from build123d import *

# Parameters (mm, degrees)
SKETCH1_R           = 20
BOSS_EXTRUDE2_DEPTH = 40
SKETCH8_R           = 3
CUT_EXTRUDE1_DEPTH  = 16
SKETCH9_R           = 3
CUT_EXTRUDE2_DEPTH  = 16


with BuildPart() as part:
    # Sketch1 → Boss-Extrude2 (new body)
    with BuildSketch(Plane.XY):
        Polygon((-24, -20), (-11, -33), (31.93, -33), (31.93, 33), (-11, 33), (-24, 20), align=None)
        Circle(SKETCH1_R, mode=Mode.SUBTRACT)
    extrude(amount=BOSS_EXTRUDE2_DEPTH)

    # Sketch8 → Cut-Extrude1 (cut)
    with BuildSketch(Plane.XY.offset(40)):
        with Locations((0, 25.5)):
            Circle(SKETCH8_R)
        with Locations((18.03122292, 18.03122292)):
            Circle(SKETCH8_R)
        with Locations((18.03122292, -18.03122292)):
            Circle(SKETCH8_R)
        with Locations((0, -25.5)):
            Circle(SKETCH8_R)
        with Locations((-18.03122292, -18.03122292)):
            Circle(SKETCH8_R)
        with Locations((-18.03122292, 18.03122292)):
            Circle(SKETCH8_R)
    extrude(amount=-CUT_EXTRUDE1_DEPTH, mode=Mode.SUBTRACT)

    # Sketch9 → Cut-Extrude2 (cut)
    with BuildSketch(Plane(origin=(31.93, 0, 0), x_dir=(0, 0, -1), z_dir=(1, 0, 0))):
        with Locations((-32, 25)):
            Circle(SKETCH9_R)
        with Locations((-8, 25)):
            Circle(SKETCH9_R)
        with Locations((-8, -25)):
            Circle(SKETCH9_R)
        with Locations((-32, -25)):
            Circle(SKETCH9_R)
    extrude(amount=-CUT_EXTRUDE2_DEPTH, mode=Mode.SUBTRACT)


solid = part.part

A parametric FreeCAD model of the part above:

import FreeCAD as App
import Part
import Sketcher
Q = App.Units.Quantity

doc = App.newDocument("Part")
body = doc.addObject("PartDesign::Body", "Body")

# Sketch on XY plane
sketch1 = doc.addObject("Sketcher::SketchObject", "Sketch")
body.addObject(sketch1)
sketch1.AttachmentSupport = (doc.XY_Plane, [""])
sketch1.MapMode = "FlatFace"
sketch1.addGeometry([
    Part.LineSegment(App.Vector(-24, -20, 0), App.Vector(-11, -33, 0)),  # 0
    Part.LineSegment(App.Vector(-11, -33, 0), App.Vector(31.93, -33, 0)),  # 1
    Part.LineSegment(App.Vector(31.93, -33, 0), App.Vector(31.93, 33, 0)),  # 2
    Part.LineSegment(App.Vector(31.93, 33, 0), App.Vector(-11, 33, 0)),  # 3
    Part.LineSegment(App.Vector(-11, 33, 0), App.Vector(-24, 20, 0)),  # 4
    Part.LineSegment(App.Vector(-24, 20, 0), App.Vector(-24, -20, 0)),  # 5
    Part.Circle(App.Vector(0, 0, 0), App.Vector(0, 0, 1), 20),  # 6
], False)
sketch1.addConstraint([
    Sketcher.Constraint("Coincident", 0, 2, 1, 1),
    Sketcher.Constraint("Coincident", 1, 2, 2, 1),
    Sketcher.Constraint("Coincident", 2, 2, 3, 1),
    Sketcher.Constraint("Coincident", 3, 2, 4, 1),
    Sketcher.Constraint("Coincident", 4, 2, 5, 1),
    Sketcher.Constraint("Coincident", 5, 2, 0, 1),
    Sketcher.Constraint("Horizontal", 1),
    Sketcher.Constraint("Vertical", 2),
    Sketcher.Constraint("Horizontal", 3),
    Sketcher.Constraint("Vertical", 5),
    Sketcher.Constraint("Coincident", 6, 3, -1, 1),
    Sketcher.Constraint("Symmetric", 0, 2, 3, 2, -1),
    Sketcher.Constraint("Perpendicular", 0, 4),
    Sketcher.Constraint("Equal", 0, 4),
    Sketcher.Constraint("Diameter", 6, Q("40 mm")),
    Sketcher.Constraint("DistanceY", 2, 1, 2, 2, Q("66 mm")),
    Sketcher.Constraint("DistanceY", 5, 2, 5, 1, Q("40 mm")),
    Sketcher.Constraint("DistanceX", 0, 2, -1, 1, Q("11 mm")),
    Sketcher.Constraint("DistanceX", 1, 1, 1, 2, Q("42.93 mm")),
])
pad1 = doc.addObject("PartDesign::Pad", "Pad")
body.addObject(pad1)
pad1.Profile = sketch1
pad1.Length = 40

# Sketch on XY plane
sketch2 = doc.addObject("Sketcher::SketchObject", "Sketch001")
body.addObject(sketch2)
sketch2.AttachmentSupport = (doc.XY_Plane, [""])
sketch2.MapMode = "FlatFace"
sketch2.AttachmentOffset = App.Placement(App.Vector(0, 0, 40), App.Rotation())
sketch2.addGeometry([
    Part.Circle(App.Vector(0, 25.5, 0), App.Vector(0, 0, 1), 3),  # 0
    Part.Circle(App.Vector(18.031223, 18.031223, 0), App.Vector(0, 0, 1), 3),  # 1
    Part.Circle(App.Vector(18.031223, -18.031223, 0), App.Vector(0, 0, 1), 3),  # 2
    Part.Circle(App.Vector(0, -25.5, 0), App.Vector(0, 0, 1), 3),  # 3
    Part.Circle(App.Vector(-18.031223, -18.031223, 0), App.Vector(0, 0, 1), 3),  # 4
    Part.Circle(App.Vector(-18.031223, 18.031223, 0), App.Vector(0, 0, 1), 3),  # 5
], False)
sketch2.addConstraint([
    Sketcher.Constraint("Equal", 0, 1),
    Sketcher.Constraint("Equal", 1, 2),
    Sketcher.Constraint("Equal", 2, 3),
    Sketcher.Constraint("Equal", 3, 4),
    Sketcher.Constraint("Equal", 4, 5),
    Sketcher.Constraint("Symmetric", 0, 3, 3, 3, -1, 1),
    Sketcher.Constraint("Symmetric", 1, 3, 4, 3, -1, 1),
    Sketcher.Constraint("Symmetric", 2, 3, 5, 3, -1, 1),
    Sketcher.Constraint("Symmetric", 2, 3, 4, 3, -2),
    Sketcher.Constraint("PointOnObject", 0, 3, -2),
    Sketcher.Constraint("Diameter", 0, Q("6 mm")),
    Sketcher.Constraint("DistanceY", 3, 3, 0, 3, Q("51 mm")),
    Sketcher.Constraint("DistanceX", -1, 1, 1, 3, Q("18.031223 mm")),
    Sketcher.Constraint("DistanceY", -1, 1, 1, 3, Q("18.031223 mm")),
])
pocket1 = doc.addObject("PartDesign::Pocket", "Pocket")
body.addObject(pocket1)
pocket1.Profile = sketch2
pocket1.Length = 16

# Sketch on YZ plane
sketch3 = doc.addObject("Sketcher::SketchObject", "Sketch002")
body.addObject(sketch3)
sketch3.AttachmentSupport = (doc.YZ_Plane, [""])
sketch3.MapMode = "FlatFace"
sketch3.AttachmentOffset = App.Placement(App.Vector(0, 0, 31.93), App.Rotation())
sketch3.addGeometry([
    Part.Circle(App.Vector(25, 32, 0), App.Vector(0, 0, 1), 3),
    Part.Circle(App.Vector(25, 8, 0), App.Vector(0, 0, 1), 3),
    Part.Circle(App.Vector(-25, 8, 0), App.Vector(0, 0, 1), 3),
    Part.Circle(App.Vector(-25, 32, 0), App.Vector(0, 0, 1), 3),
], False)
sketch3.addConstraint([
    Sketcher.Constraint("Equal", 0, 1),
    Sketcher.Constraint("Equal", 1, 2),
    Sketcher.Constraint("Equal", 2, 3),
    Sketcher.Constraint("Symmetric", 1, 3, 2, 3, -2),
    Sketcher.Constraint("Symmetric", 0, 3, 3, 3, -2),
    Sketcher.Constraint("Vertical", 0, 3, 1, 3),
    Sketcher.Constraint("Diameter", 0, Q("6 mm")),
    Sketcher.Constraint("DistanceX", -1, 1, 0, 3, Q("25 mm")),
    Sketcher.Constraint("DistanceY", -1, 1, 0, 3, Q("32 mm")),
    Sketcher.Constraint("DistanceY", -1, 1, 1, 3, Q("8 mm")),
])
pocket2 = doc.addObject("PartDesign::Pocket", "Pocket001")
body.addObject(pocket2)
pocket2.Profile = sketch3
pocket2.Length = 16

doc.recompute()
